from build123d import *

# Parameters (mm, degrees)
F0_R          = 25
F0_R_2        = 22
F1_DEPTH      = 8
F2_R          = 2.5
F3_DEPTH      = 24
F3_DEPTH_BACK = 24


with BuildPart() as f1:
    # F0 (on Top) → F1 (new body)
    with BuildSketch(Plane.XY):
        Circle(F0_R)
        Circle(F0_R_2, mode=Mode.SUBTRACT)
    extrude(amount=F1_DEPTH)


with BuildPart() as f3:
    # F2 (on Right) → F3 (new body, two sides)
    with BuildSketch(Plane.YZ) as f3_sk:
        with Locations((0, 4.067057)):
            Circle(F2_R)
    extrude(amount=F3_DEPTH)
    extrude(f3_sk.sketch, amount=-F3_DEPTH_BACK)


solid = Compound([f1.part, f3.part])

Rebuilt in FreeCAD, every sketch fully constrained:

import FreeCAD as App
import Part
import Sketcher
from FreeCAD import Vector
Q = App.Units.Quantity

doc = App.newDocument("Part")
body = doc.addObject("PartDesign::Body", "Body")

# Sketch on XY plane
sketch1 = doc.addObject("Sketcher::SketchObject", "Sketch")
body.addObject(sketch1)
sketch1.AttachmentSupport = (doc.XY_Plane, [""])
sketch1.MapMode = "FlatFace"
sketch1.addGeometry([
    Part.Circle(Vector(0, 0, 0), Vector(0, 0, 1), 25),
    Part.Circle(Vector(0, 0, 0), Vector(0, 0, 1), 22),
], False)
sketch1.addConstraint([
    Sketcher.Constraint("Coincident", 0, 3, -1, 1),
    Sketcher.Constraint("Coincident", 1, 3, -1, 1),
    Sketcher.Constraint("Diameter", 0, Q("50 mm")),
    Sketcher.Constraint("Diameter", 1, Q("44 mm")),
])
pad1 = doc.addObject("PartDesign::Pad", "Pad")
body.addObject(pad1)
pad1.Profile = sketch1
pad1.Length = 8
body2 = doc.addObject("PartDesign::Body", "Body001")

# Sketch on YZ plane
sketch2 = doc.addObject("Sketcher::SketchObject", "Sketch001")
body2.addObject(sketch2)
sketch2.AttachmentSupport = (doc.getObject("YZ_Plane001"), [""])
sketch2.MapMode = "FlatFace"
sketch2.addGeometry(Part.Circle(Vector(0, 4.1, 0), Vector(0, 0, 1), 2.5), False)
sketch2.addConstraint([
    Sketcher.Constraint("PointOnObject", 0, 3, -2),
    Sketcher.Constraint("Diameter", 0, Q("5 mm")),
    Sketcher.Constraint("DistanceY", -1, 1, 0, 3, Q("4.067057 mm")),
])
pad2 = doc.addObject("PartDesign::Pad", "Pad001")
body2.addObject(pad2)
pad2.Profile = sketch2
pad2.Type = "TwoLengths"
pad2.Length = 24
pad2.Length2 = 24

doc.recompute()
